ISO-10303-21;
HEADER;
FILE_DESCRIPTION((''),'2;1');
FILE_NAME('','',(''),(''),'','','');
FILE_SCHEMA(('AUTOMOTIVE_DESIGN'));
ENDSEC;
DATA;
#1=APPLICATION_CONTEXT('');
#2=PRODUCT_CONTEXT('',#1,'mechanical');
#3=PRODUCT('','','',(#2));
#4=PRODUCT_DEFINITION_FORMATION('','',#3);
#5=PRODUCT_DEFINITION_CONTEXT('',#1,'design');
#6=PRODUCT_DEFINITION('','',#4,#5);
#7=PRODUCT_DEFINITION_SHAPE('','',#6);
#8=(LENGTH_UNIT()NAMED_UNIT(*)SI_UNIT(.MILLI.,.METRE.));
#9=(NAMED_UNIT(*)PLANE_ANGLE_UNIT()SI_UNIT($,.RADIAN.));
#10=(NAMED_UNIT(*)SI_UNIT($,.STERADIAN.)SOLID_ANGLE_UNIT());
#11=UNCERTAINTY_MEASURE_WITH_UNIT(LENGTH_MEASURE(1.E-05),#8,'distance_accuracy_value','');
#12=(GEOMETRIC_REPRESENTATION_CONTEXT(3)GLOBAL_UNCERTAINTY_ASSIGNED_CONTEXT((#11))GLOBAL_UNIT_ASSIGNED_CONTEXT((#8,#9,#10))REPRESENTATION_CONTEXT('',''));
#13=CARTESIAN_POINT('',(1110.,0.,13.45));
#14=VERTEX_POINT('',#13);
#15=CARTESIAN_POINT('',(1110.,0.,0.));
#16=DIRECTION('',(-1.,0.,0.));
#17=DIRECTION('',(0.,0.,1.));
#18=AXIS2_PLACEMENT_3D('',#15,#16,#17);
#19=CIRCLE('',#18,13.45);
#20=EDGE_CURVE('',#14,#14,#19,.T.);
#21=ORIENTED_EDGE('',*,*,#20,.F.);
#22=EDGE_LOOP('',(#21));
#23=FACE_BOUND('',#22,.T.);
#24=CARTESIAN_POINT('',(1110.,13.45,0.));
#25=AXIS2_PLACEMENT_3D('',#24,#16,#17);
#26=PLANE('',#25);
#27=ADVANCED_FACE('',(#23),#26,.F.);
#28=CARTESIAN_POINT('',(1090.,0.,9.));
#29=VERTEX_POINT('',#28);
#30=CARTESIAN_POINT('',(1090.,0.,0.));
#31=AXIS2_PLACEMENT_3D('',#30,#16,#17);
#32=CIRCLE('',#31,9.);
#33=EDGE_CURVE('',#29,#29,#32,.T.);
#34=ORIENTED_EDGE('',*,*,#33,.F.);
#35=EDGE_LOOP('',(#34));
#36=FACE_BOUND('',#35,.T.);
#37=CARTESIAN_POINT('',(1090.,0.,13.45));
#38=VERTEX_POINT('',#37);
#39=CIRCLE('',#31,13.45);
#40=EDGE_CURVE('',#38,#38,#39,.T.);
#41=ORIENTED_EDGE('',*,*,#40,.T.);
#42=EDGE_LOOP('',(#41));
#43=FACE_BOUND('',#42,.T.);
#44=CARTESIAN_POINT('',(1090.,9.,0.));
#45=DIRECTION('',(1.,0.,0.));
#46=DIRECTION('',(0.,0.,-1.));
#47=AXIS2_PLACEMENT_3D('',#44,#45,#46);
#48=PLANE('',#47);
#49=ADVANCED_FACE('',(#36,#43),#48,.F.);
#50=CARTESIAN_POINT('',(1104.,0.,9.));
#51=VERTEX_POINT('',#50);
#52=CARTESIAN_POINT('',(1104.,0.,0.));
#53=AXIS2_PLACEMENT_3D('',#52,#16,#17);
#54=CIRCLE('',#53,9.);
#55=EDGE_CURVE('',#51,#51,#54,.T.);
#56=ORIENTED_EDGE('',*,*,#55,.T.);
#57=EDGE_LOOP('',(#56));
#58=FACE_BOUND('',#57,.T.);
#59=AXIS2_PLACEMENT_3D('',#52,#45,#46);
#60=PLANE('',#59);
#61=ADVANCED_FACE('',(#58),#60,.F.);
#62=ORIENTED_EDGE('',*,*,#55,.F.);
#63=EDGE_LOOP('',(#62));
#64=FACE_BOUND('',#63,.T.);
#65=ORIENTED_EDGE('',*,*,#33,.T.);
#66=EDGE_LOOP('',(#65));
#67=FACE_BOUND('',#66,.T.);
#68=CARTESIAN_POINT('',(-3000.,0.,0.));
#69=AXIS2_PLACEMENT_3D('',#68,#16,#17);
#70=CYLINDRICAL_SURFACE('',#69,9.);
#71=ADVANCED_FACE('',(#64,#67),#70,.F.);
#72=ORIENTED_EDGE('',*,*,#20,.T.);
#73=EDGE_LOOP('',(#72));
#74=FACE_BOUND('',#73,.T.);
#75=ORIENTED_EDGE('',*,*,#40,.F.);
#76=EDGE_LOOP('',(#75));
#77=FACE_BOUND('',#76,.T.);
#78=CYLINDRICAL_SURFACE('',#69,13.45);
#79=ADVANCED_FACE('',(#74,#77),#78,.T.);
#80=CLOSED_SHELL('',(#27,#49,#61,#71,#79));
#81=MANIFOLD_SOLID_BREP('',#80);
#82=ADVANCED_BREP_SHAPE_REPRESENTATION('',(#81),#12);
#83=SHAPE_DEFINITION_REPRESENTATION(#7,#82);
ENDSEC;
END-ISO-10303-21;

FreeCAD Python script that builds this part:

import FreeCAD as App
import Part
import Sketcher

V = App.Vector
Q = App.Units.Quantity

doc = App.newDocument("Part")
params = doc.addObject("Spreadsheet::Sheet", "Params")
for row, (alias, value) in enumerate([
    ("sketch1_width", "14 mm"),
    ("sketch1_width2", "6 mm"),
    ("sketch1_height", "9 mm"),
    ("sketch1_height2", "4.45 mm"),
    ("revolution_angle", "360 deg"),
], start=1):
    params.set(f"A{row}", alias)
    params.set(f"B{row}", "=" + value)
    params.setAlias(f"B{row}", alias)

body = doc.addObject("PartDesign::Body", "Body")

# Sketch on XY plane
sketch1 = body.newObject("Sketcher::SketchObject", "Sketch")
sketch1.AttachmentSupport = (doc.getObject("XY_Plane"), [""])
sketch1.MapMode = "FlatFace"
sketch1.addGeometry([
    Part.LineSegment(V(1090, 13.45, 0), V(1090, 9, 0)),  # 0
    Part.LineSegment(V(1090, 9, 0), V(1104, 9, 0)),  # 1
    Part.LineSegment(V(1104, 9, 0), V(1104, 0, 0)),  # 2
    Part.LineSegment(V(1104, 0, 0), V(1110, 0, 0)),  # 3
    Part.LineSegment(V(1110, 0, 0), V(1110, 13.45, 0)),  # 4
    Part.LineSegment(V(1110, 13.45, 0), V(1090, 13.45, 0)),  # 5
], False)
sketch1.addConstraint([
    Sketcher.Constraint("Coincident", 0, 2, 1, 1),
    Sketcher.Constraint("Coincident", 1, 2, 2, 1),
    Sketcher.Constraint("Coincident", 2, 2, 3, 1),
    Sketcher.Constraint("Coincident", 3, 2, 4, 1),
    Sketcher.Constraint("Coincident", 4, 2, 5, 1),
    Sketcher.Constraint("Coincident", 5, 2, 0, 1),
    Sketcher.Constraint("Vertical", 0),
    Sketcher.Constraint("Horizontal", 1),
    Sketcher.Constraint("Vertical", 2),
    Sketcher.Constraint("Horizontal", 3),
    Sketcher.Constraint("Vertical", 4),
    Sketcher.Constraint("Horizontal", 5),
    Sketcher.Constraint("PointOnObject", 2, 2, -1),
    Sketcher.Constraint("DistanceX", 1, 1, 1, 2, Q("14 mm")),
    Sketcher.Constraint("DistanceX", 3, 1, 3, 2, Q("6 mm")),
    Sketcher.Constraint("DistanceY", 2, 2, 2, 1, Q("9 mm")),
    Sketcher.Constraint("DistanceX", -1, 1, 0, 2, Q("1090 mm")),
    Sketcher.Constraint("DistanceY", 0, 2, 0, 1, Q("4.45 mm")),
])
sketch1.setExpression("Constraints[13]", "Params.sketch1_width")
sketch1.setExpression("Constraints[14]", "Params.sketch1_width2")
sketch1.setExpression("Constraints[15]", "Params.sketch1_height")
sketch1.setExpression("Constraints[17]", "Params.sketch1_height2")
revolution = body.newObject("PartDesign::Revolution", "Revolution")
revolution.Profile = sketch1
revolution.ReferenceAxis = (sketch1, ["H_Axis"])
revolution.setExpression("Angle", "Params.revolution_angle")

doc.recompute()
